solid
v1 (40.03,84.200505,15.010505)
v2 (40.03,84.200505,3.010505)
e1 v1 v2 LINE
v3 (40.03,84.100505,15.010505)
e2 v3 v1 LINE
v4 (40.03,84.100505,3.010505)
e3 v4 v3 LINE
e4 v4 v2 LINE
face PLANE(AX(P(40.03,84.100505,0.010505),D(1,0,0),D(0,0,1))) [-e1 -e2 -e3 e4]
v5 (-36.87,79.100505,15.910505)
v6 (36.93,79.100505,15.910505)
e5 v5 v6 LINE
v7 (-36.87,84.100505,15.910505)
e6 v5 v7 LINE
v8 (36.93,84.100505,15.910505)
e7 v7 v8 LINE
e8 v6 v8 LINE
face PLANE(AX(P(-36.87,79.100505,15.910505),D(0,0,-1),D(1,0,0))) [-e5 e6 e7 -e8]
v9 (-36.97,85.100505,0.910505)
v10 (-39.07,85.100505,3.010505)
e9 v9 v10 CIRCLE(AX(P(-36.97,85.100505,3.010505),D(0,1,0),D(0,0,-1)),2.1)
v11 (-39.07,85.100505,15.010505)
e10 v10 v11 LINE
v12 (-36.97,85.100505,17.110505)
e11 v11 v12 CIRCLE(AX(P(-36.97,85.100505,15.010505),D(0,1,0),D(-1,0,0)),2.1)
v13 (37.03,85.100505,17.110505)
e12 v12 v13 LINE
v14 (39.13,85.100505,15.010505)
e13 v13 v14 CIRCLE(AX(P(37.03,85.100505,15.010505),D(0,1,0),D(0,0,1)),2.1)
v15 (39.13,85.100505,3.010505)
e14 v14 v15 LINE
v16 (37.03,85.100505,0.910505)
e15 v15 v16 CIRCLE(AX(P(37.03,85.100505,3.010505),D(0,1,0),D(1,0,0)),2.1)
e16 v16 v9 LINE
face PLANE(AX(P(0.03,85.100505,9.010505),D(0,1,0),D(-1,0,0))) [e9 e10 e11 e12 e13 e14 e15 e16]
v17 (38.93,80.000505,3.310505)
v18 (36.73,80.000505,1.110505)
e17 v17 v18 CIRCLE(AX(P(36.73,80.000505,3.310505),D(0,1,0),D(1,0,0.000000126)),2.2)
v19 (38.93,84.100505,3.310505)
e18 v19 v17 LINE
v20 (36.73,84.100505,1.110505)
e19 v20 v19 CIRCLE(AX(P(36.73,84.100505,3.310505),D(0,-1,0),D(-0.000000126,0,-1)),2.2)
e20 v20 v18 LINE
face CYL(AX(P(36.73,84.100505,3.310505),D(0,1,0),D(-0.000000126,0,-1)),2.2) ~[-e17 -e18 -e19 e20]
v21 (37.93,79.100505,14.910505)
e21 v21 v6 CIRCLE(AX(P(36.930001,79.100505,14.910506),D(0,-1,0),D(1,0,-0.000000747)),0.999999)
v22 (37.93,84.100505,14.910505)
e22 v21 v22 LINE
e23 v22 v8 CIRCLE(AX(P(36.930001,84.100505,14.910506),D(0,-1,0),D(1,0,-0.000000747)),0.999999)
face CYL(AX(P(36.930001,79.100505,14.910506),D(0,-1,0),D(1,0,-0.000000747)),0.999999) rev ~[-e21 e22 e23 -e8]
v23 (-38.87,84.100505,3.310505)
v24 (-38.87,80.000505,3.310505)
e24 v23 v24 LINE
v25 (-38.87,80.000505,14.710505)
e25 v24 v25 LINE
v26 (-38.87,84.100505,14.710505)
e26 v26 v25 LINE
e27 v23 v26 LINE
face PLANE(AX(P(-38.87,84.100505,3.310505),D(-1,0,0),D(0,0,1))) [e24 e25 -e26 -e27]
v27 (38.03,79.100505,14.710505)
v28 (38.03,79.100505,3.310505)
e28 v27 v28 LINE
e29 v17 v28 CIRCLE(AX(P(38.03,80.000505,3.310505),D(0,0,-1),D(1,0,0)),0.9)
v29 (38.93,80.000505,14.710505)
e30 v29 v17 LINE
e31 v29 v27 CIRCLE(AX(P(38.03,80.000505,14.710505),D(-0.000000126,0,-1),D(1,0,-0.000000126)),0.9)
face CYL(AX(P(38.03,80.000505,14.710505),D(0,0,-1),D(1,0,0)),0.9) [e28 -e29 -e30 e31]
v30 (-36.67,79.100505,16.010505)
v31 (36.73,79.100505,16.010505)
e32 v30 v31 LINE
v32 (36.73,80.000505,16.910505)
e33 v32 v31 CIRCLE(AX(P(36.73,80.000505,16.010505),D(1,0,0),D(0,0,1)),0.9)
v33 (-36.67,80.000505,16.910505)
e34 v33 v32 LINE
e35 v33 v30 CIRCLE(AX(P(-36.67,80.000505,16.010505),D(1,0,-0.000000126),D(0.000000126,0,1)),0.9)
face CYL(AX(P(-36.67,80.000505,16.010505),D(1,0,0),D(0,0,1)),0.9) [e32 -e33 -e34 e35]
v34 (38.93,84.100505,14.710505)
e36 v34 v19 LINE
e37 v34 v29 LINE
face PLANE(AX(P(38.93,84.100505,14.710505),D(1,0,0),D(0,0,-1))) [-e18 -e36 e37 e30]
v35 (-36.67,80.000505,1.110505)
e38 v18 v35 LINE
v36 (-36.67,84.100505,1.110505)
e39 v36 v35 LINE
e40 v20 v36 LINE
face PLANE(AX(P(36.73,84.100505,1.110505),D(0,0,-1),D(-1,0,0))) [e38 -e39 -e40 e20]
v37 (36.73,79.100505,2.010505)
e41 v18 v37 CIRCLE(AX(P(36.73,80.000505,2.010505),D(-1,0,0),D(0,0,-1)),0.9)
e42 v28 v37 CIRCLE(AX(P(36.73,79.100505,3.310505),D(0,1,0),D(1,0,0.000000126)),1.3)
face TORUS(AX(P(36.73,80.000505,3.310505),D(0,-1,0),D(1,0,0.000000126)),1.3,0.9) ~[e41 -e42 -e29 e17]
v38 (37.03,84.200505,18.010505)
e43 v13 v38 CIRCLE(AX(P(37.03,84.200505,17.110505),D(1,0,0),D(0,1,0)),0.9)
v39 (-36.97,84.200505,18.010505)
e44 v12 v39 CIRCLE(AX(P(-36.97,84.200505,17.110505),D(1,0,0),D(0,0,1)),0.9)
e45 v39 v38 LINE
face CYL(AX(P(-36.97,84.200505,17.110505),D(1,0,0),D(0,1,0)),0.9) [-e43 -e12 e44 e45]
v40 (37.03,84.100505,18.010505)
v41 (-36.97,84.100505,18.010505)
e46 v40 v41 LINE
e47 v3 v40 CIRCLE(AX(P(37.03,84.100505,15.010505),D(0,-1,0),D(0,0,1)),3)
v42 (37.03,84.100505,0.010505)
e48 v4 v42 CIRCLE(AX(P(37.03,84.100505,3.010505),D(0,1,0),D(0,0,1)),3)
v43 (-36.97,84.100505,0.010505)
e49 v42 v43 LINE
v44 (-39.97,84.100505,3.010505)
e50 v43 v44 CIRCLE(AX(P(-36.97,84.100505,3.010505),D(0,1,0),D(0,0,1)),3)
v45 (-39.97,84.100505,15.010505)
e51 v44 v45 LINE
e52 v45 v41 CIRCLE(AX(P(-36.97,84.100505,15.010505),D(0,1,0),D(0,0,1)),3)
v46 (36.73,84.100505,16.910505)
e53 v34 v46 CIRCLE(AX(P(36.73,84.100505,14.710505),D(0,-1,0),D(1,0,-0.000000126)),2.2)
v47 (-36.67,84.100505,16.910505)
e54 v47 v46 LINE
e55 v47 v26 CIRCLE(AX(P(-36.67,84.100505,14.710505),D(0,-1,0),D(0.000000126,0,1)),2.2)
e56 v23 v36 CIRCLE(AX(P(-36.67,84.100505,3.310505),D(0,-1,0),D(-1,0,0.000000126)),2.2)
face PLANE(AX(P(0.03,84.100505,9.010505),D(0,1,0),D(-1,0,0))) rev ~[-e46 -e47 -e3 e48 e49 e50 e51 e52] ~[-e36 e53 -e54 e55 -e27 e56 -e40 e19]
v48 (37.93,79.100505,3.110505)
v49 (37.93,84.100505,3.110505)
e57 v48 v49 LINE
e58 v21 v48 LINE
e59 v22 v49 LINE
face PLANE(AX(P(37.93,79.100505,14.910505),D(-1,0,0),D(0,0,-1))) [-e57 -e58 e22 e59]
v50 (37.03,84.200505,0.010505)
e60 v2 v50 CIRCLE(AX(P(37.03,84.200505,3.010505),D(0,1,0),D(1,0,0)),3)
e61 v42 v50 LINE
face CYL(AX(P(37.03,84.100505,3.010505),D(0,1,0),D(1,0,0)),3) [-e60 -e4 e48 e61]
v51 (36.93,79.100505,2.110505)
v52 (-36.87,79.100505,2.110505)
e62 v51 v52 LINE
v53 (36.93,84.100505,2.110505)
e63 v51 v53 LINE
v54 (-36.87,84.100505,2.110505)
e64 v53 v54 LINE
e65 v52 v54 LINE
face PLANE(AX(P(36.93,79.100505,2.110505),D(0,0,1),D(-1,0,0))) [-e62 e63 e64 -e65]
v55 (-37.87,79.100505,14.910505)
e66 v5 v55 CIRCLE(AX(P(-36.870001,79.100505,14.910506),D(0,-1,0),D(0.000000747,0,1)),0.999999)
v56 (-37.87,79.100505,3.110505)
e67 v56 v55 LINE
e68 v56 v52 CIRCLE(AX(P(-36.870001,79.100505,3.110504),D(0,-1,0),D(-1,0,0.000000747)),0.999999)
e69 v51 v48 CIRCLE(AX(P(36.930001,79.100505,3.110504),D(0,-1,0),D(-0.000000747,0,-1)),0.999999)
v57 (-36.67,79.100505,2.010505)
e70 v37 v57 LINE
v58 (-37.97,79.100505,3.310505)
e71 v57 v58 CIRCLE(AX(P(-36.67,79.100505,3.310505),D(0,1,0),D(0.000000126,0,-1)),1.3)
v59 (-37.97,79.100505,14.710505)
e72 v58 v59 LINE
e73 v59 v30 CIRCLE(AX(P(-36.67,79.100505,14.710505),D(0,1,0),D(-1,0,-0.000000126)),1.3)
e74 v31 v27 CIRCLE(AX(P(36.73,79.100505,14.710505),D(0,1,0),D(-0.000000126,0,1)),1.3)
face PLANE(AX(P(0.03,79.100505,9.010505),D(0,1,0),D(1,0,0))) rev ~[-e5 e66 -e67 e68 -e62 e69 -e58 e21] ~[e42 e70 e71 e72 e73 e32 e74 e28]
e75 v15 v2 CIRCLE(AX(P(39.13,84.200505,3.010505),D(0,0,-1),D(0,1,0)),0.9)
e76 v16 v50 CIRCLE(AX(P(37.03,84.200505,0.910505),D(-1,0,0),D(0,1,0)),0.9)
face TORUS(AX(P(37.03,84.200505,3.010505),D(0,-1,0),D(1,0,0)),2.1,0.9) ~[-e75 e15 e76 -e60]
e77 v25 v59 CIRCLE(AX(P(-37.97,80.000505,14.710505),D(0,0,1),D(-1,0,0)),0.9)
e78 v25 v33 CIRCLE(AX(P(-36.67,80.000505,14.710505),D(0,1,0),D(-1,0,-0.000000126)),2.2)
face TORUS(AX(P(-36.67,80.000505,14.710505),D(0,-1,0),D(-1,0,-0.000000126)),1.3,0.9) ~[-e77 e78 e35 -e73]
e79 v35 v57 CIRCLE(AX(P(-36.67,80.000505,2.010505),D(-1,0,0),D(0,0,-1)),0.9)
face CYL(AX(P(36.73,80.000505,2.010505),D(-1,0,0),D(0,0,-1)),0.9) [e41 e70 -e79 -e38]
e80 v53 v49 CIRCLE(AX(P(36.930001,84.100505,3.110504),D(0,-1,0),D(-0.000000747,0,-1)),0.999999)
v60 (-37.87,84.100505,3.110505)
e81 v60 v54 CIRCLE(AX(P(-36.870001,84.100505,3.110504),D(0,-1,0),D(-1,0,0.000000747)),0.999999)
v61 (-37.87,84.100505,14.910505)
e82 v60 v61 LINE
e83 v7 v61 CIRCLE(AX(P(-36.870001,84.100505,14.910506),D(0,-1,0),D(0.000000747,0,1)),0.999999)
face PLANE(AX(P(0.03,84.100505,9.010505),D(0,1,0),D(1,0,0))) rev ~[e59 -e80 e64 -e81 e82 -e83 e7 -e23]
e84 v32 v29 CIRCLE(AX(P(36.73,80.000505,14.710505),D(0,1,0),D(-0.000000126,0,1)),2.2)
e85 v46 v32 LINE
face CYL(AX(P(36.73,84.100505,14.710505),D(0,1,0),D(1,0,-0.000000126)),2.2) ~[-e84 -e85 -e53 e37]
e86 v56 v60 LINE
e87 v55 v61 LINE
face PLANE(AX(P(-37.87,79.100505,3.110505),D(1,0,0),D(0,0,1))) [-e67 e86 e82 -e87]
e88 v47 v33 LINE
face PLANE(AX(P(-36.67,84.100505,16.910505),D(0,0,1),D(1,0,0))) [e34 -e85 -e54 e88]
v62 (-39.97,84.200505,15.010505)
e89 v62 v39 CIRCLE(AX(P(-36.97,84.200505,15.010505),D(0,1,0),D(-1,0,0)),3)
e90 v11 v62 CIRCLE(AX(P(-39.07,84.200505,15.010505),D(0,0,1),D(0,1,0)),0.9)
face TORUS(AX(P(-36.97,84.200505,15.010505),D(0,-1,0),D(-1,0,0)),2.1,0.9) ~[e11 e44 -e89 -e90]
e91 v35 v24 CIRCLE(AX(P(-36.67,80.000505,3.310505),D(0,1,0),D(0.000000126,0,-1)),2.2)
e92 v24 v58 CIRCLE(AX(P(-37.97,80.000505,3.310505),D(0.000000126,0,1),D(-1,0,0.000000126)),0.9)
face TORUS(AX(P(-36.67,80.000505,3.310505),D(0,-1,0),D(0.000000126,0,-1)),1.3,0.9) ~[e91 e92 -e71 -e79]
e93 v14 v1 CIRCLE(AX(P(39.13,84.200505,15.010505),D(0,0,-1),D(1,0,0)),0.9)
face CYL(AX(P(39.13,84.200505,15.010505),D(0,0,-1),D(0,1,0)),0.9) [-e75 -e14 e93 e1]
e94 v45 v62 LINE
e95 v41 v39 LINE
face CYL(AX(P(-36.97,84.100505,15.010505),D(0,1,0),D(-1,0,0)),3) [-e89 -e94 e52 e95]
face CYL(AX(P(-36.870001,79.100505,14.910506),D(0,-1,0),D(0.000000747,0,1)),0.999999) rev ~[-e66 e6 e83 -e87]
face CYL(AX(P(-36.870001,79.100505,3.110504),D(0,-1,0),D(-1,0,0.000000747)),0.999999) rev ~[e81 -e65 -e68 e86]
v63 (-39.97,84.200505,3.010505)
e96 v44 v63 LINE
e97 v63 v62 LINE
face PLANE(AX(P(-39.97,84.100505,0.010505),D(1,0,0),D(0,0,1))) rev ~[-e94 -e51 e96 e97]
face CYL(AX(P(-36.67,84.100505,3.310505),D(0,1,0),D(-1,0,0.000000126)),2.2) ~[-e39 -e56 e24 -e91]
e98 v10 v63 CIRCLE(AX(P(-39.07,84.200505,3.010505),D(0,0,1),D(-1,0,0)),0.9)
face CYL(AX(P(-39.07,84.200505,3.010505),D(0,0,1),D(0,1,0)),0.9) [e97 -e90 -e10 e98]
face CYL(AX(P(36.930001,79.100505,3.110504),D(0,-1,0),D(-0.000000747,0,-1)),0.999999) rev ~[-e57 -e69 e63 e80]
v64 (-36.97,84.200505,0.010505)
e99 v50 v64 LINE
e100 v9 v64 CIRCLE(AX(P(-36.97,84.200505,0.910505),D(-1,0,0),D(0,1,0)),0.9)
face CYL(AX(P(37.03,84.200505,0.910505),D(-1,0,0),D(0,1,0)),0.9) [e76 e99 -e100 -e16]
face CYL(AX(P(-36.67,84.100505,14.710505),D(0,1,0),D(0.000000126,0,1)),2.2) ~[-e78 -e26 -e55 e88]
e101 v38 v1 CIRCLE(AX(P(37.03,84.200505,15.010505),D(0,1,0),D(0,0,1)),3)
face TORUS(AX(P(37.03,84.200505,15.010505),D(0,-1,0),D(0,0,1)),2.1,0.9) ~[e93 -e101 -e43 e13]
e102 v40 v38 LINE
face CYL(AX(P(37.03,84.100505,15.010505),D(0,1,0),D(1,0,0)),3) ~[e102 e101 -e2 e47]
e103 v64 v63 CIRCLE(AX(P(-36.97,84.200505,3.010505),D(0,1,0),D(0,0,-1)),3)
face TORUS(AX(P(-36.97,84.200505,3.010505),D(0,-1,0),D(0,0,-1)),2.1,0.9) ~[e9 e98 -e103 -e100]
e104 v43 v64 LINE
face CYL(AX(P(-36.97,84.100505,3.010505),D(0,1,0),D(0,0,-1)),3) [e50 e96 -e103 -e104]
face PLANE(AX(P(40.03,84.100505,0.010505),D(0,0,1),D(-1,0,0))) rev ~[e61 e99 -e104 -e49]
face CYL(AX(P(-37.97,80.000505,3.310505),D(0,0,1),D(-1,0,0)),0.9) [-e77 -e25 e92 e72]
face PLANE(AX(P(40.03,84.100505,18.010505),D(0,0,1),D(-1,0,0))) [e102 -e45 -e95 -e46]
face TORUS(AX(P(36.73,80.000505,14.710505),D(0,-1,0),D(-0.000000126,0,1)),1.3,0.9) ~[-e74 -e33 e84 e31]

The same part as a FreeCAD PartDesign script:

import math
import FreeCAD as App
import Part
import Sketcher
from FreeCAD import Vector


def edges_at(feature, points):
    """Names of the edges that pass closest to the given points."""
    edges = feature.Shape.Edges
    near = lambda p: min(range(len(edges)), key=lambda i: edges[i].distToShape(Part.Vertex(*p))[0])
    return sorted({f"Edge{near(p) + 1}" for p in points})


def add_polygon(sketch, points):
    """Adds a closed chain of lines whose ends are joined by coincident constraints."""
    first, n = sketch.GeometryCount, len(points)
    for a, b in zip(points, points[1:] + points[:1]):
        sketch.addGeometry(Part.LineSegment(App.Vector(*a, 0), App.Vector(*b, 0)), False)
    for i in range(n):
        sketch.addConstraint(Sketcher.Constraint("Coincident", first + i, 2, first + (i + 1) % n, 1))

doc = App.newDocument("Part")
params = doc.addObject("Spreadsheet::Sheet", "Params")
for row, (alias, value) in enumerate([
    ("sketch1_width", "80 mm"),
    ("sketch1_height", "18 mm"),
    ("pad1_length", "1 mm"),
    ("fillet_radius", "3 mm"),
    ("sketch2_radius", "2.2 mm"),
    ("sketch2_width", "73.4 mm"),
    ("sketch2_height", "11.4 mm"),
    ("pad2_length", "5 mm"),
    ("sketch3_radius", "0.999999 mm"),
    ("sketch3_width", "73.8 mm"),
    ("sketch3_height", "11.8 mm"),
    ("pocket1_length", "5 mm"),
    ("fillet2_radius", "0.9 mm"),
    ("fillet3_radius", "0.9 mm"),
], start=1):
    params.set(f"A{row}", alias)
    params.set(f"B{row}", "=" + value)
    params.setAlias(f"B{row}", alias)

body = doc.addObject("PartDesign::Body", "Body")

# Sketch on YZ plane
sketch1 = doc.addObject("Sketcher::SketchObject", "Sketch")
body.addObject(sketch1)
sketch1.AttachmentSupport = (doc.YZ_Plane, [""])
sketch1.MapMode = "FlatFace"
add_polygon(sketch1, [(-31, 10), (-31, -8), (49, -8), (49, 10)])  # lines 0-3
sketch1.addConstraint([
    Sketcher.Constraint("Vertical", 0),
    Sketcher.Constraint("Horizontal", 1),
    Sketcher.Constraint("Vertical", 2),
    Sketcher.Constraint("Horizontal", 3),
    Sketcher.Constraint("DistanceX", 1, 1, 1, 2, 80.0),
    Sketcher.Constraint("DistanceY", 0, 2, 0, 1, 18.0),
    Sketcher.Constraint("DistanceX", 0, 2, -1, 1, 31.03),
    Sketcher.Constraint("DistanceY", 0, 2, -1, 1, 8.09),
])
sketch1.setExpression("Constraints[8]", "Params.sketch1_width")
sketch1.setExpression("Constraints[9]", "Params.sketch1_height")
pad1 = doc.addObject("PartDesign::Pad", "Pad")
body.addObject(pad1)
pad1.Profile = sketch1
pad1.setExpression("Length", "Params.pad1_length")
doc.recompute()

fillet = doc.addObject("PartDesign::Fillet", "Fillet")
body.addObject(fillet)
fillet.Base = (pad1, edges_at(pad1, [
    (0.5, -31.03, -8.09),
    (0.5, -31.03, 9.91),
    (0.5, 48.97, 9.91),
    (0.5, 48.97, -8.09),
]))
fillet.setExpression("Radius", "Params.fillet_radius")

# Sketch on YZ plane
sketch2 = doc.addObject("Sketcher::SketchObject", "Sketch001")
body.addObject(sketch2)
sketch2.AttachmentSupport = (doc.YZ_Plane, [""])
sketch2.MapMode = "FlatFace"
sketch2.addGeometry([
    Part.LineSegment(Vector(45.7, -7, 0), Vector(-27.7, -7, 0)),  # 0
    Part.ArcOfCircle(Part.Circle(Vector(-27.7, -4.8, 0), Vector(0, 0, 1), 2.2), math.radians(180), math.radians(270)),  # 1
    Part.LineSegment(Vector(-29.9, -4.8, 0), Vector(-29.9, 6.6, 0)),  # 2
    Part.ArcOfCircle(Part.Circle(Vector(-27.7, 6.6, 0), Vector(0, 0, 1), 2.2), math.radians(90), math.radians(180)),  # 3
    Part.LineSegment(Vector(-27.7, 8.8, 0), Vector(45.7, 8.8, 0)),  # 4
    Part.ArcOfCircle(Part.Circle(Vector(45.7, 6.6, 0), Vector(0, 0, 1), 2.2), math.radians(0), math.radians(90)),  # 5
    Part.LineSegment(Vector(47.9, 6.6, 0), Vector(47.9, -4.8, 0)),  # 6
    Part.ArcOfCircle(Part.Circle(Vector(45.7, -4.8, 0), Vector(0, 0, 1), 2.2), math.radians(-90), math.radians(0)),  # 7
], False)
sketch2.addConstraint([
    Sketcher.Constraint("Tangent", 0, 2, 1, 2),
    Sketcher.Constraint("Tangent", 1, 1, 2, 1),
    Sketcher.Constraint("Tangent", 2, 2, 3, 2),
    Sketcher.Constraint("Tangent", 3, 1, 4, 1),
    Sketcher.Constraint("Tangent", 4, 2, 5, 2),
    Sketcher.Constraint("Tangent", 5, 1, 6, 1),
    Sketcher.Constraint("Tangent", 6, 2, 7, 2),
    Sketcher.Constraint("Tangent", 7, 1, 0, 1),
    Sketcher.Constraint("Horizontal", 0),
    Sketcher.Constraint("Vertical", 2),
    Sketcher.Constraint("Horizontal", 4),
    Sketcher.Constraint("Vertical", 6),
    Sketcher.Constraint("Equal", 1, 3),
    Sketcher.Constraint("Equal", 3, 5),
    Sketcher.Constraint("Equal", 5, 7),
    Sketcher.Constraint("Radius", 1, 2.2),
    Sketcher.Constraint("DistanceX", 0, 2, 0, 1, 73.4),
    Sketcher.Constraint("DistanceY", 2, 1, 2, 2, 11.4),
    Sketcher.Constraint("DistanceX", 1, 3, -1, 1, 27.73),
    Sketcher.Constraint("DistanceY", 1, 3, -1, 1, 4.79),
])
sketch2.setExpression("Constraints[15]", "Params.sketch2_radius")
sketch2.setExpression("Constraints[16]", "Params.sketch2_width")
sketch2.setExpression("Constraints[17]", "Params.sketch2_height")
pad2 = doc.addObject("PartDesign::Pad", "Pad001")
body.addObject(pad2)
pad2.Profile = sketch2
pad2.setExpression("Length", "Params.pad2_length")
pad2.Reversed = True

# Sketch on YZ plane
sketch3 = doc.addObject("Sketcher::SketchObject", "Sketch002")
body.addObject(sketch3)
sketch3.AttachmentSupport = (doc.YZ_Plane, [""])
sketch3.MapMode = "FlatFace"
sketch3.AttachmentOffset = App.Placement(Vector(0, 0, -5), App.Rotation())
sketch3.addGeometry([
    Part.LineSegment(Vector(45.9, -6, 0), Vector(-27.9, -6, 0)),  # 0
    Part.ArcOfCircle(Part.Circle(Vector(-27.9, -5, 0), Vector(0, 0, 1), 1), math.radians(180), math.radians(270)),  # 1
    Part.LineSegment(Vector(-28.9, -5, 0), Vector(-28.9, 6.8, 0)),  # 2
    Part.ArcOfCircle(Part.Circle(Vector(-27.9, 6.8, 0), Vector(0, 0, 1), 1), math.radians(90), math.radians(180)),  # 3
    Part.LineSegment(Vector(-27.9, 7.8, 0), Vector(45.9, 7.8, 0)),  # 4
    Part.ArcOfCircle(Part.Circle(Vector(45.9, 6.8, 0), Vector(0, 0, 1), 1), math.radians(0), math.radians(90)),  # 5
    Part.LineSegment(Vector(46.9, 6.8, 0), Vector(46.9, -5, 0)),  # 6
    Part.ArcOfCircle(Part.Circle(Vector(45.9, -5, 0), Vector(0, 0, 1), 1), math.radians(-90), math.radians(0)),  # 7
], False)
sketch3.addConstraint([
    Sketcher.Constraint("Tangent", 0, 2, 1, 2),
    Sketcher.Constraint("Tangent", 1, 1, 2, 1),
    Sketcher.Constraint("Tangent", 2, 2, 3, 2),
    Sketcher.Constraint("Tangent", 3, 1, 4, 1),
    Sketcher.Constraint("Tangent", 4, 2, 5, 2),
    Sketcher.Constraint("Tangent", 5, 1, 6, 1),
    Sketcher.Constraint("Tangent", 6, 2, 7, 2),
    Sketcher.Constraint("Tangent", 7, 1, 0, 1),
    Sketcher.Constraint("Horizontal", 0),
    Sketcher.Constraint("Vertical", 2),
    Sketcher.Constraint("Horizontal", 4),
    Sketcher.Constraint("Vertical", 6),
    Sketcher.Constraint("Equal", 1, 3),
    Sketcher.Constraint("Equal", 3, 5),
    Sketcher.Constraint("Equal", 5, 7),
    Sketcher.Constraint("Radius", 1, 0.999999),
    Sketcher.Constraint("DistanceX", 0, 2, 0, 1, 73.8),
    Sketcher.Constraint("DistanceY", 2, 1, 2, 2, 11.8),
    Sketcher.Constraint("DistanceX", 1, 3, -1, 1, 27.930001),
    Sketcher.Constraint("DistanceY", 1, 3, -1, 1, 4.990001),
])
sketch3.setExpression("Constraints[15]", "Params.sketch3_radius")
sketch3.setExpression("Constraints[16]", "Params.sketch3_width")
sketch3.setExpression("Constraints[17]", "Params.sketch3_height")
pocket1 = doc.addObject("PartDesign::Pocket", "Pocket")
body.addObject(pocket1)
pocket1.Profile = sketch3
pocket1.setExpression("Length", "Params.pocket1_length")
pocket1.Reversed = True
doc.recompute()

fillet2 = doc.addObject("PartDesign::Fillet", "Fillet001")
body.addObject(fillet2)
fillet2.Base = (pocket1, edges_at(pocket1, [(1, 8.97, -8.09)]))
fillet2.setExpression("Radius", "Params.fillet2_radius")
doc.recompute()

fillet3 = doc.addObject("PartDesign::Fillet", "Fillet002")
body.addObject(fillet3)
fillet3.Base = (fillet2, edges_at(fillet2, [(-5, 8.97, -6.99)]))
fillet3.setExpression("Radius", "Params.fillet3_radius")
body2 = doc.addObject("PartDesign::Body", "Body001")
doc.recompute()

body.Placement = App.Placement(Vector(9, 84.100505, 8.100505), App.Rotation(Vector(0, 0, 1), 90))
boolean = doc.addObject("PartDesign::Boolean", "Boolean")
body2.addObject(boolean)
boolean.Type = "Fuse"
boolean.addObjects([body])

doc.recompute()
